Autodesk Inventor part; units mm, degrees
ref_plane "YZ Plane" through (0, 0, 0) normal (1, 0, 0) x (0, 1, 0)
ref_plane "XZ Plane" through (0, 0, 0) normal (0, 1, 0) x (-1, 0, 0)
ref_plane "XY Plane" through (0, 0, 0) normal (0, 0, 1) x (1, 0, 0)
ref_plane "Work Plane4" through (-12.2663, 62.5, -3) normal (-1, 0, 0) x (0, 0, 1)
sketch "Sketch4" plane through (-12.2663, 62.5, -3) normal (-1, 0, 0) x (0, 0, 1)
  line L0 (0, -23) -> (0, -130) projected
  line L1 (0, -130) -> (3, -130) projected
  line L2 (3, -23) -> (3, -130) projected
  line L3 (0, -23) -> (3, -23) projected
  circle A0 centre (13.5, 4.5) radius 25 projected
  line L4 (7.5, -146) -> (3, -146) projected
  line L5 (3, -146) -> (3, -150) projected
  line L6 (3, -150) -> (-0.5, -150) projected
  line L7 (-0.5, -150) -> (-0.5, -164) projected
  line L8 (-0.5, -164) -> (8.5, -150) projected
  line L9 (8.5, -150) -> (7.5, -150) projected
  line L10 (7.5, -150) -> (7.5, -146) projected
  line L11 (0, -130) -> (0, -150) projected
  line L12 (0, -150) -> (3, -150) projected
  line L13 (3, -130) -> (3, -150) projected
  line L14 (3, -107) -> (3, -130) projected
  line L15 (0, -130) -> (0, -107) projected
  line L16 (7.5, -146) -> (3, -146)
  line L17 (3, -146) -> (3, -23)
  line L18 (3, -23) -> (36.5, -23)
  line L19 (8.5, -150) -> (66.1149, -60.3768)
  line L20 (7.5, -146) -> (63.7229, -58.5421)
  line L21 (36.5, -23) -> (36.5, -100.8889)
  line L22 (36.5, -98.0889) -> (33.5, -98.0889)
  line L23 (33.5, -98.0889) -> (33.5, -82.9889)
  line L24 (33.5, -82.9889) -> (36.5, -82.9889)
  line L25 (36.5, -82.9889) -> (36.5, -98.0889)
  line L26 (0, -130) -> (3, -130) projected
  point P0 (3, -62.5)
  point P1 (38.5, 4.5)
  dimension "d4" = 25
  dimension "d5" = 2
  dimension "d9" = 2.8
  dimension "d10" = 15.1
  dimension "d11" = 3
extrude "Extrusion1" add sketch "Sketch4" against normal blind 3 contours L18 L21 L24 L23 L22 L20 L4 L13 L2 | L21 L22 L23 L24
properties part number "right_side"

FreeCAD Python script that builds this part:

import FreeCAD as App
import Part
import Sketcher
from FreeCAD import Vector
Q = App.Units.Quantity


def add_polygon(sketch, points):
    """Adds a closed chain of lines whose ends are joined by coincident constraints."""
    first, n = sketch.GeometryCount, len(points)
    for a, b in zip(points, points[1:] + points[:1]):
        sketch.addGeometry(Part.LineSegment(App.Vector(*a, 0), App.Vector(*b, 0)), False)
    for i in range(n):
        sketch.addConstraint(Sketcher.Constraint("Coincident", first + i, 2, first + (i + 1) % n, 1))

doc = App.newDocument("Part")
body = doc.addObject("PartDesign::Body", "Body")

sketch1 = body.newObject("Sketcher::SketchObject", "Sketch")
sketch1.AttachmentSupport = (doc.getObject("YZ_Plane"), [""])
sketch1.MapMode = "FlatFace"
sketch1.AttachmentOffset = App.Placement(Vector(0, 0, -12.2663), App.Rotation())
add_polygon(sketch1, [(39.5, 33.5), (39.5, 0), (-83.5, 0), (-83.5, 4.5), (-38.4, 33.5)])
sketch1.addConstraint([
    Sketcher.Constraint("Vertical", 0),
    Sketcher.Constraint("Horizontal", 1),
    Sketcher.Constraint("Vertical", 2),
    Sketcher.Constraint("Horizontal", 4),
    Sketcher.Constraint("PointOnObject", 0, 2, -1),
    Sketcher.Constraint("DistanceX", 1, 2, 1, 1, Q("123 mm")),
    Sketcher.Constraint("DistanceY", 0, 2, 0, 1, Q("33.5 mm")),
    Sketcher.Constraint("DistanceY", 2, 1, 2, 2, Q("4.5 mm")),
    Sketcher.Constraint("DistanceX", -1, 1, 0, 2, Q("39.5 mm")),
    Sketcher.Constraint("DistanceX", 4, 1, 4, 2, Q("77.889 mm")),
])
pad1 = body.newObject("PartDesign::Pad", "Pad")
pad1.Profile = sketch1
pad1.Length = 3

doc.recompute()
